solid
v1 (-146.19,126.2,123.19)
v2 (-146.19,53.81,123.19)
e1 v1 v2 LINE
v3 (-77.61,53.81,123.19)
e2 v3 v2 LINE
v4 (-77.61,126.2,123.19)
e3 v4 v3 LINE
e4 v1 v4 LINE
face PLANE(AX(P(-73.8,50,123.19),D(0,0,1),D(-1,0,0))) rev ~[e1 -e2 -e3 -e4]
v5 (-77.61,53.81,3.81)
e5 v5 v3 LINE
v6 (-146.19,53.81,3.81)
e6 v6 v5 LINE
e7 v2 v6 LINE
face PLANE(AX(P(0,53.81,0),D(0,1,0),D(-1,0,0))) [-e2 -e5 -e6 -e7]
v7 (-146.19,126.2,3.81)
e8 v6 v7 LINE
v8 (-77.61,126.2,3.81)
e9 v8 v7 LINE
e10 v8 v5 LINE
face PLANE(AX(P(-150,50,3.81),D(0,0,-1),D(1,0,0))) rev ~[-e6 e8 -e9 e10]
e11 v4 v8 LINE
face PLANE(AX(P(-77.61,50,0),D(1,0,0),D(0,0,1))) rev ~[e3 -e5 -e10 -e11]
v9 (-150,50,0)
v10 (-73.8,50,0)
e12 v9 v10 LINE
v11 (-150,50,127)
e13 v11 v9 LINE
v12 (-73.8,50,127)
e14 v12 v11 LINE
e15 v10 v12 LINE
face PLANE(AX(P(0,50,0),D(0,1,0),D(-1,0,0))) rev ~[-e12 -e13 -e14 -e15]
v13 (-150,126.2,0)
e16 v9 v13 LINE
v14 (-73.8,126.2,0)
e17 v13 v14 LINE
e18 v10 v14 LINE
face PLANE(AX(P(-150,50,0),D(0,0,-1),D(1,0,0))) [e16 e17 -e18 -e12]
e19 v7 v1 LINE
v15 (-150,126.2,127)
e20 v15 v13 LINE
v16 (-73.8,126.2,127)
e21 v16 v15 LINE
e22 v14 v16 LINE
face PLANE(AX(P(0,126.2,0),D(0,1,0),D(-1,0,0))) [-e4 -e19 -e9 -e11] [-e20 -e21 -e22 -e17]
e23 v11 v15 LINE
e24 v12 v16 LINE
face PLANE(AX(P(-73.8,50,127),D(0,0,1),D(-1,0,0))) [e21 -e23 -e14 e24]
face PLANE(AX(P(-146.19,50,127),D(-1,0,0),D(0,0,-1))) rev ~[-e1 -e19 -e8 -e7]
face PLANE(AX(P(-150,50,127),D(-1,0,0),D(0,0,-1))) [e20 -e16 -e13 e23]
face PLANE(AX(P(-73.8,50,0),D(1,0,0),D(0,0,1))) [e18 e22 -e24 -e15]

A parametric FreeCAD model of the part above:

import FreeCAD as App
import Part
import Sketcher
Q = App.Units.Quantity


def faces_at(feature, points):
    """Names of the faces that lie closest to the given points."""
    faces = feature.Shape.Faces
    near = lambda p: min(range(len(faces)), key=lambda i: faces[i].distToShape(Part.Vertex(*p))[0])
    return sorted({f"Face{near(p) + 1}" for p in points})

doc = App.newDocument("Part")
body = doc.addObject("PartDesign::Body", "Body")

# Sketch on XZ plane
sketch1 = doc.addObject("Sketcher::SketchObject", "Sketch")
body.addObject(sketch1)
sketch1.AttachmentSupport = (doc.XZ_Plane, [""])
sketch1.MapMode = "FlatFace"
sketch1.AttachmentOffset = App.Placement(App.Vector(0, 0, -1.9685039 * 25.4), App.Rotation())
sketch1.addGeometry([
    Part.LineSegment(App.Vector(-73.8, 0, 0), App.Vector(-150, 0, 0)),
    Part.LineSegment(App.Vector(-150, 0, 0), App.Vector(-150, 127, 0)),
    Part.LineSegment(App.Vector(-150, 127, 0), App.Vector(-73.8, 127, 0)),
    Part.LineSegment(App.Vector(-73.8, 127, 0), App.Vector(-73.8, 0, 0)),
], False)
sketch1.addConstraint([
    Sketcher.Constraint("Coincident", 0, 2, 1, 1),
    Sketcher.Constraint("Coincident", 1, 2, 2, 1),
    Sketcher.Constraint("Coincident", 2, 2, 3, 1),
    Sketcher.Constraint("Coincident", 3, 2, 0, 1),
    Sketcher.Constraint("Horizontal", 0),
    Sketcher.Constraint("Vertical", 1),
    Sketcher.Constraint("Horizontal", 2),
    Sketcher.Constraint("Vertical", 3),
    Sketcher.Constraint("PointOnObject", 0, 2, -1),
    Sketcher.Constraint("DistanceX", 0, 2, 0, 1, Q("3 in")),
    Sketcher.Constraint("DistanceY", 1, 1, 1, 2, Q("5 in")),
    Sketcher.Constraint("DistanceX", 0, 2, -1, 1, Q("5.9055 in")),
])
pad1 = doc.addObject("PartDesign::Pad", "Pad")
body.addObject(pad1)
pad1.Profile = sketch1
pad1.Length = Q("3 in")
pad1.Reversed = True
doc.recompute()

thickness = doc.addObject("PartDesign::Thickness", "Thickness")
body.addObject(thickness)
thickness.Base = (pad1, faces_at(pad1, [(-99.2, 126.2, 42.333)]))
thickness.Value = Q("0.15 in")
thickness.Reversed = True
thickness.Join = "Intersection"

doc.recompute()
